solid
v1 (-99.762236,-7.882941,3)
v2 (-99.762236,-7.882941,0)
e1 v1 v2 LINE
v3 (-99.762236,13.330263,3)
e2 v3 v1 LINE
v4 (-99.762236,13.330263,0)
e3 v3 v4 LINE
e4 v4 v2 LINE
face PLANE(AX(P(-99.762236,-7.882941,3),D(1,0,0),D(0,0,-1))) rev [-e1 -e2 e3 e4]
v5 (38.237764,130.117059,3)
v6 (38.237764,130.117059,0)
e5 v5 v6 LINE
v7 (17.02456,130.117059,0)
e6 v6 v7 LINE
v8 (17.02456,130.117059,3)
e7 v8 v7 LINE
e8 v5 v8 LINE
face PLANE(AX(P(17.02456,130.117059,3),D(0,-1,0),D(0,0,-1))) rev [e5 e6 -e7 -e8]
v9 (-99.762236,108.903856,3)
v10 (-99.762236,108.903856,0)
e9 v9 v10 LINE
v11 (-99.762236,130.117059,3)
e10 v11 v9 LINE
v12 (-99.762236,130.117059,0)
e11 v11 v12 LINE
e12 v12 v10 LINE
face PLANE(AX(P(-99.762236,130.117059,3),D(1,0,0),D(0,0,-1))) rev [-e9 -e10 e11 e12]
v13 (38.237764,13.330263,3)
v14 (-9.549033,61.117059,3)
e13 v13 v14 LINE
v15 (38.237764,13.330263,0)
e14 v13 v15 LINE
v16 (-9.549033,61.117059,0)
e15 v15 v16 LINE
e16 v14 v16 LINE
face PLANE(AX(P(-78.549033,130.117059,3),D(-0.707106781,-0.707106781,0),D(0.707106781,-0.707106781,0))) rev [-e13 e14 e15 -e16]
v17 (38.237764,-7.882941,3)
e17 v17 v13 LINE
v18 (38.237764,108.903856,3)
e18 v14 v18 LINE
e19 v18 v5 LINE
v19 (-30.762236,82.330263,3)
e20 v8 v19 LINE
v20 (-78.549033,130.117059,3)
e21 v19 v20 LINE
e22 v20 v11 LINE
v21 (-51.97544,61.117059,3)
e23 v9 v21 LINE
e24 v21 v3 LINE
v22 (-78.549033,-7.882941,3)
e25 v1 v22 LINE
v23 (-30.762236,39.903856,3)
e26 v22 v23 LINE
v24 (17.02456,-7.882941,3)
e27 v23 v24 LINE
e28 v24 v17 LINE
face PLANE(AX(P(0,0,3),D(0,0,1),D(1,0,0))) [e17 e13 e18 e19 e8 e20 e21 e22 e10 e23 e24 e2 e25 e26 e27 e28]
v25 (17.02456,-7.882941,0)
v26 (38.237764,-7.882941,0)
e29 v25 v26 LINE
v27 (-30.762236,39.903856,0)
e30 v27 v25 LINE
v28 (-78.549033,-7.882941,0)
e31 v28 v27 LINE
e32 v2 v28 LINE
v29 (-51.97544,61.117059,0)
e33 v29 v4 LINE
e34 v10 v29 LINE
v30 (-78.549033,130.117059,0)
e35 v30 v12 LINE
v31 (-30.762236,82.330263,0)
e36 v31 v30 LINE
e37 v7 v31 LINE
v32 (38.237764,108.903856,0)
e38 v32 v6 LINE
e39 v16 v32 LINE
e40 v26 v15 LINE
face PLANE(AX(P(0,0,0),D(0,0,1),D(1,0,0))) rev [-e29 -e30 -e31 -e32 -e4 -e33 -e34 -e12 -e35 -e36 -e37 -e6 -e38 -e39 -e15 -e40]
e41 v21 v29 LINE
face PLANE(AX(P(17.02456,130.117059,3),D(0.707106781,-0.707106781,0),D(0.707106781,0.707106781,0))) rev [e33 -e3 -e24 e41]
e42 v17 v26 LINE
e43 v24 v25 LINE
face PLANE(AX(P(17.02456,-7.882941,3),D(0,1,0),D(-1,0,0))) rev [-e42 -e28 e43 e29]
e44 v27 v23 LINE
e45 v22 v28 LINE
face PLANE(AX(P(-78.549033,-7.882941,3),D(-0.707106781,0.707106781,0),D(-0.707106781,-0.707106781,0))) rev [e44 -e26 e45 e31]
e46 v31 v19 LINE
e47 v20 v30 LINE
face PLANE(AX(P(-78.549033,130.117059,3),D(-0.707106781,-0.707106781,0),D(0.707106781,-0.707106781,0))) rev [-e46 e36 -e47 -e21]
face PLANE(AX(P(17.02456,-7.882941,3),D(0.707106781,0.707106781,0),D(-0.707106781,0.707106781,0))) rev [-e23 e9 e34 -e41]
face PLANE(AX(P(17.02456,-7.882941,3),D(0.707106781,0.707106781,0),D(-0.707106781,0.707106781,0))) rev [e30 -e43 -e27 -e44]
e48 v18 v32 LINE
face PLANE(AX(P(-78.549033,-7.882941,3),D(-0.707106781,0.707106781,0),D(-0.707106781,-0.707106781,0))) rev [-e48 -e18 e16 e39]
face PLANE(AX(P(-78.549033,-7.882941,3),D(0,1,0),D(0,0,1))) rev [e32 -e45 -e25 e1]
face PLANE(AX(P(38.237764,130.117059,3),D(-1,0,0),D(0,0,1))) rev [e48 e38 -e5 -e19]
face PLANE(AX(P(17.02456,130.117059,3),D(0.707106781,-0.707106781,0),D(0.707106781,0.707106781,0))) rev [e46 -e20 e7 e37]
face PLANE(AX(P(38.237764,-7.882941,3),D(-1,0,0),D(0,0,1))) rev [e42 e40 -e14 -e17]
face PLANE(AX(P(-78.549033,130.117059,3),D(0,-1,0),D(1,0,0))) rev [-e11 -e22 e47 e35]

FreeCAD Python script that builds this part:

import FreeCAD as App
import Part
import Sketcher

V = App.Vector
Q = App.Units.Quantity

doc = App.newDocument("Part")
body = doc.addObject("PartDesign::Body", "Body")

# Sketch on XY plane
sketch1 = body.newObject("Sketcher::SketchObject", "Sketch")
sketch1.AttachmentSupport = (doc.getObject("XY_Plane"), [""])
sketch1.MapMode = "FlatFace"
sketch1.addGeometry([
    Part.LineSegment(V(38, 13, 0), V(-79, 130, 0)),  # 0
    Part.LineSegment(V(-79, 130, 0), V(-100, 130, 0)),  # 1
    Part.LineSegment(V(-100, 130, 0), V(-100, 109, 0)),  # 2
    Part.LineSegment(V(-100, 109, 0), V(17, -8, 0)),  # 3
    Part.LineSegment(V(17, -8, 0), V(38, -8, 0)),  # 4
    Part.LineSegment(V(38, -8, 0), V(38, 13, 0)),  # 5
], False)
sketch1.addConstraint([
    Sketcher.Constraint("Coincident", 0, 2, 1, 1),
    Sketcher.Constraint("Coincident", 1, 2, 2, 1),
    Sketcher.Constraint("Coincident", 2, 2, 3, 1),
    Sketcher.Constraint("Coincident", 3, 2, 4, 1),
    Sketcher.Constraint("Coincident", 4, 2, 5, 1),
    Sketcher.Constraint("Coincident", 5, 2, 0, 1),
    Sketcher.Constraint("Horizontal", 1),
    Sketcher.Constraint("Vertical", 2),
    Sketcher.Constraint("Horizontal", 4),
    Sketcher.Constraint("Vertical", 5),
    Sketcher.Constraint("Parallel", 0, 3),
    Sketcher.Constraint("Equal", 1, 4),
    Sketcher.Constraint("Equal", 4, 2),
    Sketcher.Constraint("Angle", 0, Q("135 deg")),
    Sketcher.Constraint("DistanceY", 3, 2, 0, 2, Q("138 mm")),
    Sketcher.Constraint("Distance", 0, Q("165.161472 mm")),
    Sketcher.Constraint("DistanceY", -1, 1, 0, 2, Q("130.117059 mm")),
    Sketcher.Constraint("DistanceX", -1, 1, 3, 2, Q("17.02456 mm")),
])
pad1 = body.newObject("PartDesign::Pad", "Pad")
pad1.Profile = sketch1
pad1.Length = 3

# Sketch on XY plane
sketch2 = body.newObject("Sketcher::SketchObject", "Sketch001")
sketch2.AttachmentSupport = (doc.getObject("XY_Plane"), [""])
sketch2.MapMode = "FlatFace"
sketch2.addGeometry([
    Part.LineSegment(V(-79, -8, 0), V(38, 109, 0)),  # 0
    Part.LineSegment(V(38, 109, 0), V(38, 130, 0)),  # 1
    Part.LineSegment(V(38, 130, 0), V(17, 130, 0)),  # 2
    Part.LineSegment(V(17, 130, 0), V(-100, 13, 0)),  # 3
    Part.LineSegment(V(-100, 13, 0), V(-100, -8, 0)),  # 4
    Part.LineSegment(V(-100, -8, 0), V(-79, -8, 0)),  # 5
], False)
sketch2.addConstraint([
    Sketcher.Constraint("Coincident", 0, 2, 1, 1),
    Sketcher.Constraint("Coincident", 1, 2, 2, 1),
    Sketcher.Constraint("Coincident", 2, 2, 3, 1),
    Sketcher.Constraint("Coincident", 3, 2, 4, 1),
    Sketcher.Constraint("Coincident", 4, 2, 5, 1),
    Sketcher.Constraint("Coincident", 5, 2, 0, 1),
    Sketcher.Constraint("Vertical", 1),
    Sketcher.Constraint("Horizontal", 2),
    Sketcher.Constraint("Vertical", 4),
    Sketcher.Constraint("Horizontal", 5),
    Sketcher.Constraint("Parallel", 0, 3),
    Sketcher.Constraint("Equal", 2, 5),
    Sketcher.Constraint("Equal", 5, 1),
    Sketcher.Constraint("Angle", 0, Q("45 deg")),
    Sketcher.Constraint("DistanceX", 3, 2, 0, 2, Q("138 mm")),
    Sketcher.Constraint("Distance", 0, Q("165.161472 mm")),
    Sketcher.Constraint("DistanceY", -1, 1, 1, 2, Q("130.117059 mm")),
    Sketcher.Constraint("DistanceX", -1, 1, 2, 2, Q("17.02456 mm")),
])
pad2 = body.newObject("PartDesign::Pad", "Pad001")
pad2.Profile = sketch2
pad2.Length = 3

doc.recompute()
